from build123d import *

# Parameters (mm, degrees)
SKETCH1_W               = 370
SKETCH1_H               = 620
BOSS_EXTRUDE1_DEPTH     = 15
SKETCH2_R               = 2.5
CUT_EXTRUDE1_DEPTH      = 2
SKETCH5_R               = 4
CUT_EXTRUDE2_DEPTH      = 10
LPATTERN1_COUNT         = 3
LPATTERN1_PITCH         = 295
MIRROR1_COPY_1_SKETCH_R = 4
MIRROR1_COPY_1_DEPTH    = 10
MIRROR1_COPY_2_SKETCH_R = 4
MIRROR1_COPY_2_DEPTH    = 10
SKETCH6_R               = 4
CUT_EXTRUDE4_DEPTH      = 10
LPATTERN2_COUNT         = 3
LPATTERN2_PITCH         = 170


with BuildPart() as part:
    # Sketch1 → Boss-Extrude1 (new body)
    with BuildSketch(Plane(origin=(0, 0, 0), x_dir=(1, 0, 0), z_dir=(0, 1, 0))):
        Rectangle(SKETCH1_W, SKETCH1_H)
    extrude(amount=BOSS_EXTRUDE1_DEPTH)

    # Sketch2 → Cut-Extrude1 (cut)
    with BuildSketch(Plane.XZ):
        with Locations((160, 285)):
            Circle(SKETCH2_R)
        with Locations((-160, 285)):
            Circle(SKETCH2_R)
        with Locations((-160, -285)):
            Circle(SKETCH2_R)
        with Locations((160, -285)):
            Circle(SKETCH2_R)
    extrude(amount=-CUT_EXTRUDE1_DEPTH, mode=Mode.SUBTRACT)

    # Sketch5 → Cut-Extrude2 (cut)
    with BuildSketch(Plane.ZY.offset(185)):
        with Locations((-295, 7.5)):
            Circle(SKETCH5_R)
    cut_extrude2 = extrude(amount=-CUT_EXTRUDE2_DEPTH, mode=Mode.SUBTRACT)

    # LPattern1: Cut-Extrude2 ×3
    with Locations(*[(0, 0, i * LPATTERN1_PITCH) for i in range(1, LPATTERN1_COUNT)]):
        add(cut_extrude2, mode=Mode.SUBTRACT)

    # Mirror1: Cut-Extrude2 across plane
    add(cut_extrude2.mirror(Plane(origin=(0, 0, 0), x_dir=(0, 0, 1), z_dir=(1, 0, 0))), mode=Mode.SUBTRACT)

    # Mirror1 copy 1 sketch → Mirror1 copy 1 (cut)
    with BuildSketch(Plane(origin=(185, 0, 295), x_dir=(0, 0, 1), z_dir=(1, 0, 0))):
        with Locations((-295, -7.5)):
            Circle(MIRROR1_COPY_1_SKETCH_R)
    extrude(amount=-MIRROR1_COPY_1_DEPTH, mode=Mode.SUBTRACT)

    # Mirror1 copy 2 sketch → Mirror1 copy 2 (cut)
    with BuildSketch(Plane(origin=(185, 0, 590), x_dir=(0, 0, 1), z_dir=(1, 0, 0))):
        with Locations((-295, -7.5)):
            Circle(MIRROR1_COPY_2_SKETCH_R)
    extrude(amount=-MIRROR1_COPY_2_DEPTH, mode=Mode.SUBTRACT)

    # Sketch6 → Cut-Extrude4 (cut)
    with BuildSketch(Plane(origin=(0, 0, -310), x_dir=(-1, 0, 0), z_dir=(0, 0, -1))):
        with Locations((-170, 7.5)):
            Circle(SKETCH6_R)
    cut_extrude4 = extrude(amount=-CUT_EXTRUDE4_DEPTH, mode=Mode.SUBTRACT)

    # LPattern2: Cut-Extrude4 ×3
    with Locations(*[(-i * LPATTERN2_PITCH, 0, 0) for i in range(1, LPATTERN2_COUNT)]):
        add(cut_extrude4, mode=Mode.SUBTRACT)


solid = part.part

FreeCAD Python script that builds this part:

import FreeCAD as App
import Part
import Sketcher

V = App.Vector


def add_polygon(sketch, points):
    """Adds a closed chain of lines whose ends are joined by coincident constraints."""
    first, n = sketch.GeometryCount, len(points)
    for a, b in zip(points, points[1:] + points[:1]):
        sketch.addGeometry(Part.LineSegment(App.Vector(*a, 0), App.Vector(*b, 0)), False)
    for i in range(n):
        sketch.addConstraint(Sketcher.Constraint("Coincident", first + i, 2, first + (i + 1) % n, 1))

doc = App.newDocument("Part")
body = doc.addObject("PartDesign::Body", "Body")

# Sketch on XZ plane
sketch1 = body.newObject("Sketcher::SketchObject", "Sketch")
sketch1.AttachmentSupport = (doc.getObject("XZ_Plane"), [""])
sketch1.MapMode = "FlatFace"
add_polygon(sketch1, [(-185, -310), (-185, 310), (185, 310), (185, -310)])  # lines 0-3
sketch1.addConstraint([
    Sketcher.Constraint("Vertical", 0),
    Sketcher.Constraint("Horizontal", 1),
    Sketcher.Constraint("Vertical", 2),
    Sketcher.Constraint("Horizontal", 3),
    Sketcher.Constraint("Symmetric", 0, 2, 2, 2, -1, 1),
    Sketcher.Constraint("DistanceX", 1, 1, 1, 2, 370.0),
    Sketcher.Constraint("DistanceY", 0, 1, 0, 2, 620.0),
])
pad1 = body.newObject("PartDesign::Pad", "Pad")
pad1.Profile = sketch1
pad1.Length = 15
pad1.Reversed = True

# Sketch on XZ plane
sketch2 = body.newObject("Sketcher::SketchObject", "Sketch001")
sketch2.AttachmentSupport = (doc.getObject("XZ_Plane"), [""])
sketch2.MapMode = "FlatFace"
sketch2.addGeometry([
    Part.Circle(V(160, 285, 0), V(0, 0, 1), 2.5),
    Part.Circle(V(-160, 285, 0), V(0, 0, 1), 2.5),
    Part.Circle(V(-160, -285, 0), V(0, 0, 1), 2.5),
    Part.Circle(V(160, -285, 0), V(0, 0, 1), 2.5),
], False)
sketch2.addConstraint([
    Sketcher.Constraint("Equal", 0, 1),
    Sketcher.Constraint("Equal", 1, 2),
    Sketcher.Constraint("Equal", 2, 3),
    Sketcher.Constraint("Symmetric", 0, 3, 2, 3, -1, 1),
    Sketcher.Constraint("Symmetric", 1, 3, 3, 3, -1, 1),
    Sketcher.Constraint("Symmetric", 0, 3, 1, 3, -2),
    Sketcher.Constraint("Diameter", 0, 5.0),
    Sketcher.Constraint("DistanceX", -1, 1, 0, 3, 160.0),
    Sketcher.Constraint("DistanceY", -1, 1, 0, 3, 285.0),
])
pocket1 = body.newObject("PartDesign::Pocket", "Pocket")
pocket1.Profile = sketch2
pocket1.Length = 2

# Sketch on YZ plane
sketch3 = body.newObject("Sketcher::SketchObject", "Sketch002")
sketch3.AttachmentSupport = (doc.getObject("YZ_Plane"), [""])
sketch3.MapMode = "FlatFace"
sketch3.AttachmentOffset = App.Placement(V(0, 0, -185), App.Rotation())
sketch3.addGeometry(Part.Circle(V(7.5, -295, 0), V(0, 0, 1), 4), False)
sketch3.addConstraint([
    Sketcher.Constraint("Diameter", 0, 8.0),
    Sketcher.Constraint("DistanceY", 0, 3, -1, 1, 295.0),
    Sketcher.Constraint("DistanceX", -1, 1, 0, 3, 7.5),
])
pocket2 = body.newObject("PartDesign::Pocket", "Pocket001")
pocket2.Profile = sketch3
pocket2.Length = 10
pocket2.Reversed = True
doc.recompute()

linearpattern = body.newObject("PartDesign::LinearPattern", "LinearPattern")
linearpattern.Originals = [pocket2]
linearpattern.Direction = (doc.getObject("Z_Axis"), [""])
linearpattern.Mode = "offset"
linearpattern.Offset = 295
linearpattern.Occurrences = 3
body.Tip = linearpattern
doc.recompute()

mirrored = body.newObject("PartDesign::Mirrored", "Mirrored")
mirrored.Originals = [pocket2]
mirrored.MirrorPlane = (doc.getObject("YZ_Plane"), [""])
body.Tip = mirrored

# Sketch on YZ plane
sketch4 = body.newObject("Sketcher::SketchObject", "Sketch003")
sketch4.AttachmentSupport = (doc.getObject("YZ_Plane"), [""])
sketch4.MapMode = "FlatFace"
sketch4.AttachmentOffset = App.Placement(V(0, 0, 185), App.Rotation())
sketch4.addGeometry(Part.Circle(V(7.5, 0, 0), V(0, 0, 1), 4), False)
sketch4.addConstraint([
    Sketcher.Constraint("PointOnObject", 0, 3, -1),
    Sketcher.Constraint("Diameter", 0, 8.0),
    Sketcher.Constraint("DistanceX", -1, 1, 0, 3, 7.5),
])
pocket3 = body.newObject("PartDesign::Pocket", "Pocket002")
pocket3.Profile = sketch4
pocket3.Length = 10

# Sketch on YZ plane
sketch5 = body.newObject("Sketcher::SketchObject", "Sketch004")
sketch5.AttachmentSupport = (doc.getObject("YZ_Plane"), [""])
sketch5.MapMode = "FlatFace"
sketch5.AttachmentOffset = App.Placement(V(0, 0, 185), App.Rotation())
sketch5.addGeometry(Part.Circle(V(7.5, 295, 0), V(0, 0, 1), 4), False)
sketch5.addConstraint([
    Sketcher.Constraint("Diameter", 0, 8.0),
    Sketcher.Constraint("DistanceY", -1, 1, 0, 3, 295.0),
    Sketcher.Constraint("DistanceX", -1, 1, 0, 3, 7.5),
])
pocket4 = body.newObject("PartDesign::Pocket", "Pocket003")
pocket4.Profile = sketch5
pocket4.Length = 10

# Sketch on XY plane
sketch6 = body.newObject("Sketcher::SketchObject", "Sketch005")
sketch6.AttachmentSupport = (doc.getObject("XY_Plane"), [""])
sketch6.MapMode = "FlatFace"
sketch6.AttachmentOffset = App.Placement(V(0, 0, -310), App.Rotation())
sketch6.addGeometry(Part.Circle(V(170, 7.5, 0), V(0, 0, 1), 4), False)
sketch6.addConstraint([
    Sketcher.Constraint("Diameter", 0, 8.0),
    Sketcher.Constraint("DistanceX", -1, 1, 0, 3, 170.0),
    Sketcher.Constraint("DistanceY", -1, 1, 0, 3, 7.5),
])
pocket5 = body.newObject("PartDesign::Pocket", "Pocket004")
pocket5.Profile = sketch6
pocket5.Length = 10
pocket5.Reversed = True
doc.recompute()

linearpattern2 = body.newObject("PartDesign::LinearPattern", "LinearPattern001")
linearpattern2.Originals = [pocket5]
linearpattern2.Direction = (doc.getObject("X_Axis"), [""])
linearpattern2.Mode = "offset"
linearpattern2.Offset = 170
linearpattern2.Occurrences = 3
linearpattern2.Reversed = True
body.Tip = linearpattern2

doc.recompute()
